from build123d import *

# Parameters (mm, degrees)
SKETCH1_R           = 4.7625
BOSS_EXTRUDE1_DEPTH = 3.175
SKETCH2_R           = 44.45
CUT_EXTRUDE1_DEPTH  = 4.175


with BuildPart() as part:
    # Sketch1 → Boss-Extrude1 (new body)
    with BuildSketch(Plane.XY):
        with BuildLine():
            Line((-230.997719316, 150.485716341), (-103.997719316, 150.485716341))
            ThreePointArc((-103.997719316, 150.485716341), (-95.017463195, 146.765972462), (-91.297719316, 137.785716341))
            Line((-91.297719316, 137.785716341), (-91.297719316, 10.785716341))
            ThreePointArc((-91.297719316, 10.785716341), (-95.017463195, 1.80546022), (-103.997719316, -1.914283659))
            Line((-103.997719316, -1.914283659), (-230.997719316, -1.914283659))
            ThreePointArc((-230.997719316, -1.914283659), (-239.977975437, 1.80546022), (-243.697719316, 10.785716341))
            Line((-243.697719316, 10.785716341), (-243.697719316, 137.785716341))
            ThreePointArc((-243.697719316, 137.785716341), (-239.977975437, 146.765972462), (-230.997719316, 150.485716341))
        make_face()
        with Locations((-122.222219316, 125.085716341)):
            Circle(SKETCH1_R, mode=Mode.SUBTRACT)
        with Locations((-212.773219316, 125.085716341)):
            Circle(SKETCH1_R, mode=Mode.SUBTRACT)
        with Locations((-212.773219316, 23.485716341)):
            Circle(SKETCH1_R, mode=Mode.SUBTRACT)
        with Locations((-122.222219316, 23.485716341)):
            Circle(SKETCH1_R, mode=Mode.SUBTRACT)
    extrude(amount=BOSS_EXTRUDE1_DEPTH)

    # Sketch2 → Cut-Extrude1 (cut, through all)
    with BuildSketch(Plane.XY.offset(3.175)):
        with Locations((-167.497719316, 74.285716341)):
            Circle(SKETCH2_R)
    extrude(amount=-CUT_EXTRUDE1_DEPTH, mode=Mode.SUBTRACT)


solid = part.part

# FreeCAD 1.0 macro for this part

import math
import FreeCAD as App
import Part
import Sketcher
from FreeCAD import Vector
Q = App.Units.Quantity

doc = App.newDocument("Part")
body = doc.addObject("PartDesign::Body", "Body")

# Sketch on XY plane
sketch1 = doc.addObject("Sketcher::SketchObject", "Sketch")
body.addObject(sketch1)
sketch1.AttachmentSupport = (doc.XY_Plane, [""])
sketch1.MapMode = "FlatFace"
sketch1.addGeometry(Part.LineSegment(Vector(-103.997719, 150.485716, 0), Vector(-230.997719, 150.485716, 0)), False)
sketch1.addGeometry(Part.ArcOfCircle(Part.Circle(Vector(-230.997719, 137.785716, 0), Vector(0, 0, 1), 12.7), math.radians(90), math.radians(180)), False)
sketch1.addGeometry(Part.LineSegment(Vector(-243.697719, 137.785716, 0), Vector(-243.697719, 10.785716, 0)), False)
sketch1.addGeometry(Part.ArcOfCircle(Part.Circle(Vector(-230.997719, 10.785716, 0), Vector(0, 0, 1), 12.7), math.radians(180), math.radians(270)), False)
sketch1.addGeometry(Part.LineSegment(Vector(-230.997719, -1.914284, 0), Vector(-103.997719, -1.914284, 0)), False)
sketch1.addGeometry(Part.ArcOfCircle(Part.Circle(Vector(-103.997719, 10.785716, 0), Vector(0, 0, 1), 12.7), math.radians(-90), math.radians(0)), False)
sketch1.addGeometry(Part.LineSegment(Vector(-91.297719, 10.785716, 0), Vector(-91.297719, 137.785716, 0)), False)
sketch1.addGeometry(Part.ArcOfCircle(Part.Circle(Vector(-103.997719, 137.785716, 0), Vector(0, 0, 1), 12.7), math.radians(0), math.radians(90)), False)
sketch1.addGeometry(Part.Circle(Vector(-122.222219, 23.485716, 0), Vector(0, 0, 1), 4.7625), False)
sketch1.addGeometry(Part.Circle(Vector(-212.773219, 23.485716, 0), Vector(0, 0, 1), 4.7625), False)
sketch1.addGeometry(Part.Circle(Vector(-122.222219, 125.085716, 0), Vector(0, 0, 1), 4.7625), False)
sketch1.addGeometry(Part.Circle(Vector(-212.773219, 125.085716, 0), Vector(0, 0, 1), 4.7625), False)
sketch1.addConstraint(Sketcher.Constraint("Tangent", 0, 2, 1, 1))
sketch1.addConstraint(Sketcher.Constraint("Tangent", 1, 2, 2, 1))
sketch1.addConstraint(Sketcher.Constraint("Tangent", 2, 2, 3, 1))
sketch1.addConstraint(Sketcher.Constraint("Tangent", 3, 2, 4, 1))
sketch1.addConstraint(Sketcher.Constraint("Tangent", 4, 2, 5, 1))
sketch1.addConstraint(Sketcher.Constraint("Tangent", 5, 2, 6, 1))
sketch1.addConstraint(Sketcher.Constraint("Tangent", 6, 2, 7, 1))
sketch1.addConstraint(Sketcher.Constraint("Tangent", 7, 2, 0, 1))
sketch1.addConstraint(Sketcher.Constraint("Horizontal", 0))
sketch1.addConstraint(Sketcher.Constraint("Vertical", 2))
sketch1.addConstraint(Sketcher.Constraint("Horizontal", 4))
sketch1.addConstraint(Sketcher.Constraint("Vertical", 6))
sketch1.addConstraint(Sketcher.Constraint("Equal", 1, 3))
sketch1.addConstraint(Sketcher.Constraint("Equal", 3, 5))
sketch1.addConstraint(Sketcher.Constraint("Equal", 5, 7))
sketch1.addConstraint(Sketcher.Constraint("Equal", 8, 9))
sketch1.addConstraint(Sketcher.Constraint("Equal", 9, 10))
sketch1.addConstraint(Sketcher.Constraint("Equal", 10, 11))
sketch1.addConstraint(Sketcher.Constraint("Horizontal", 8, 3, 9, 3))
sketch1.addConstraint(Sketcher.Constraint("Horizontal", 10, 3, 11, 3))
sketch1.addConstraint(Sketcher.Constraint("Vertical", 8, 3, 10, 3))
sketch1.addConstraint(Sketcher.Constraint("Vertical", 9, 3, 11, 3))
sketch1.addConstraint(Sketcher.Constraint("Equal", 4, 2))
sketch1.addConstraint(Sketcher.Constraint("Radius", 1, Q("0.5 in")))
sketch1.addConstraint(Sketcher.Constraint("DistanceX", 0, 2, 0, 1, Q("5 in")))
sketch1.addConstraint(Sketcher.Constraint("Diameter", 8, Q("0.375 in")))
sketch1.addConstraint(Sketcher.Constraint("DistanceY", 8, 3, 10, 3, Q("4 in")))
sketch1.addConstraint(Sketcher.Constraint("DistanceY", 11, 3, 0, 2, Q("1 in")))
sketch1.addConstraint(Sketcher.Constraint("DistanceX", 9, 3, 8, 3, Q("3.565 in")))
sketch1.addConstraint(Sketcher.Constraint("DistanceX", 8, 3, 5, 3, Q("0.7175 in")))
sketch1.addConstraint(Sketcher.Constraint("DistanceX", 1, 3, -1, 1, Q("230.997719 mm")))
sketch1.addConstraint(Sketcher.Constraint("DistanceY", -1, 1, 1, 3, Q("137.785716 mm")))
pad1 = doc.addObject("PartDesign::Pad", "Pad")
body.addObject(pad1)
pad1.Profile = sketch1
pad1.Length = Q("0.125 in")

# Sketch on XY plane
sketch2 = doc.addObject("Sketcher::SketchObject", "Sketch001")
body.addObject(sketch2)
sketch2.AttachmentSupport = (doc.XY_Plane, [""])
sketch2.MapMode = "FlatFace"
sketch2.AttachmentOffset = App.Placement(Vector(0, 0, 0.125 * 25.4), App.Rotation())
sketch2.addGeometry(Part.Circle(Vector(-167.497719, 74.285716, 0), Vector(0, 0, 1), 44.45), False)
sketch2.addConstraint(Sketcher.Constraint("Diameter", 0, Q("3.5 in")))
sketch2.addConstraint(Sketcher.Constraint("DistanceX", 0, 3, -1, 1, Q("167.497719 mm")))
sketch2.addConstraint(Sketcher.Constraint("DistanceY", -1, 1, 0, 3, Q("74.285716 mm")))
pocket1 = doc.addObject("PartDesign::Pocket", "Pocket")
body.addObject(pocket1)
pocket1.Profile = sketch2
pocket1.Type = "ThroughAll"

doc.recompute()
